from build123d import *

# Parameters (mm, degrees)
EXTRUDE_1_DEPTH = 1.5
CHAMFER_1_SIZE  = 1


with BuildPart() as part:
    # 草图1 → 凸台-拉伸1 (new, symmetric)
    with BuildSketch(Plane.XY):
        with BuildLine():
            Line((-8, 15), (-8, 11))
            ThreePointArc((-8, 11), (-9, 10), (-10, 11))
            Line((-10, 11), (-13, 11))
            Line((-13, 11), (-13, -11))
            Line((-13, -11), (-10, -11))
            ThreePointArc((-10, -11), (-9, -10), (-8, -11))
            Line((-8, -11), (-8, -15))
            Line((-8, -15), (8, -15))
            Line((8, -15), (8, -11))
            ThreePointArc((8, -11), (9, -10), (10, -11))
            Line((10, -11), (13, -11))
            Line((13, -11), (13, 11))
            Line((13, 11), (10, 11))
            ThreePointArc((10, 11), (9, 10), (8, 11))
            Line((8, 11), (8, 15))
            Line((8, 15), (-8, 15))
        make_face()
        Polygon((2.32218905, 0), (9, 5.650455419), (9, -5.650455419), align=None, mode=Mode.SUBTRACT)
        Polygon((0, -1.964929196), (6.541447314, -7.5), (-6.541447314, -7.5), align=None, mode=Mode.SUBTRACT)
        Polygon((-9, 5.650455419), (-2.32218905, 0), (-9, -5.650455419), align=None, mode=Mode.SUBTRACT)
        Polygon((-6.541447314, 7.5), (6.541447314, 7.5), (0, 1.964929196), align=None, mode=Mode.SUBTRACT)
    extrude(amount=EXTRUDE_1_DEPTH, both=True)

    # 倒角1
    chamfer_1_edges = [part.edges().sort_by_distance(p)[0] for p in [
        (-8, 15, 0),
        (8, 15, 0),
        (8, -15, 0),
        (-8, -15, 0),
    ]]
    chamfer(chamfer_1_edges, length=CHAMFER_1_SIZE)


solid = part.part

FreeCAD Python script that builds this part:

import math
import FreeCAD as App
import Part
import Sketcher

V = App.Vector
Q = App.Units.Quantity


def edges_at(feature, points):
    """Names of the edges that pass closest to the given points."""
    edges = feature.Shape.Edges
    near = lambda p: min(range(len(edges)), key=lambda i: edges[i].distToShape(Part.Vertex(*p))[0])
    return sorted({f"Edge{near(p) + 1}" for p in points})


def add_polygon(sketch, points):
    """Adds a closed chain of lines whose ends are joined by coincident constraints."""
    first, n = sketch.GeometryCount, len(points)
    for a, b in zip(points, points[1:] + points[:1]):
        sketch.addGeometry(Part.LineSegment(App.Vector(*a, 0), App.Vector(*b, 0)), False)
    for i in range(n):
        sketch.addConstraint(Sketcher.Constraint("Coincident", first + i, 2, first + (i + 1) % n, 1))

doc = App.newDocument("Part")
body = doc.addObject("PartDesign::Body", "Body")

# Sketch on XY plane
sketch1 = body.newObject("Sketcher::SketchObject", "Sketch")
sketch1.AttachmentSupport = (doc.getObject("XY_Plane"), [""])
sketch1.MapMode = "FlatFace"
sketch1.addGeometry(Part.LineSegment(V(-8, 15, 0), V(-8, 11, 0)), False)  # 0
sketch1.addGeometry(Part.ArcOfCircle(Part.Circle(V(-9, 11, 0), V(0, 0, 1), 1), math.radians(180), math.radians(360)), False)  # 1
sketch1.addGeometry(Part.LineSegment(V(-10, 11, 0), V(-13, 11, 0)), False)  # 2
sketch1.addGeometry(Part.LineSegment(V(-13, 11, 0), V(-13, -11, 0)), False)  # 3
sketch1.addGeometry(Part.LineSegment(V(-13, -11, 0), V(-10, -11, 0)), False)  # 4
sketch1.addGeometry(Part.ArcOfCircle(Part.Circle(V(-9, -11, 0), V(0, 0, 1), 1), math.radians(0), math.radians(180)), False)  # 5
sketch1.addGeometry(Part.LineSegment(V(-8, -11, 0), V(-8, -15, 0)), False)  # 6
sketch1.addGeometry(Part.LineSegment(V(-8, -15, 0), V(8, -15, 0)), False)  # 7
sketch1.addGeometry(Part.LineSegment(V(8, -15, 0), V(8, -11, 0)), False)  # 8
sketch1.addGeometry(Part.ArcOfCircle(Part.Circle(V(9, -11, 0), V(0, 0, 1), 1), math.radians(0), math.radians(180)), False)  # 9
sketch1.addGeometry(Part.LineSegment(V(10, -11, 0), V(13, -11, 0)), False)  # 10
sketch1.addGeometry(Part.LineSegment(V(13, -11, 0), V(13, 11, 0)), False)  # 11
sketch1.addGeometry(Part.LineSegment(V(13, 11, 0), V(10, 11, 0)), False)  # 12
sketch1.addGeometry(Part.ArcOfCircle(Part.Circle(V(9, 11, 0), V(0, 0, 1), 1), math.radians(180), math.radians(360)), False)  # 13
sketch1.addGeometry(Part.LineSegment(V(8, 11, 0), V(8, 15, 0)), False)  # 14
sketch1.addGeometry(Part.LineSegment(V(8, 15, 0), V(-8, 15, 0)), False)  # 15
add_polygon(sketch1, [(-9, -5.7), (-9, 5.7), (-2.3, 0)])  # lines 16-18
add_polygon(sketch1, [(-6.5, -7.5), (0, -2), (6.5, -7.5)])  # lines 19-21
add_polygon(sketch1, [(9, -5.7), (2.3, 0), (9, 5.7)])  # lines 22-24
add_polygon(sketch1, [(0, 2), (-6.5, 7.5), (6.5, 7.5)])  # lines 25-27
sketch1.addConstraint([
    Sketcher.Constraint("Tangent", 0, 2, 1, 2),
    Sketcher.Constraint("Coincident", 1, 1, 2, 1),
    Sketcher.Constraint("Coincident", 2, 2, 3, 1),
    Sketcher.Constraint("Coincident", 3, 2, 4, 1),
    Sketcher.Constraint("Coincident", 4, 2, 5, 2),
    Sketcher.Constraint("Tangent", 5, 1, 6, 1),
    Sketcher.Constraint("Coincident", 6, 2, 7, 1),
    Sketcher.Constraint("Coincident", 7, 2, 8, 1),
    Sketcher.Constraint("Tangent", 8, 2, 9, 2),
    Sketcher.Constraint("Coincident", 9, 1, 10, 1),
    Sketcher.Constraint("Coincident", 10, 2, 11, 1),
    Sketcher.Constraint("Coincident", 11, 2, 12, 1),
    Sketcher.Constraint("Coincident", 12, 2, 13, 2),
    Sketcher.Constraint("Tangent", 13, 1, 14, 1),
    Sketcher.Constraint("Coincident", 14, 2, 15, 1),
    Sketcher.Constraint("Coincident", 15, 2, 0, 1),
    Sketcher.Constraint("Vertical", 0),
    Sketcher.Constraint("Horizontal", 2),
    Sketcher.Constraint("Vertical", 3),
    Sketcher.Constraint("Horizontal", 4),
    Sketcher.Constraint("Vertical", 6),
    Sketcher.Constraint("Horizontal", 7),
    Sketcher.Constraint("Vertical", 8),
    Sketcher.Constraint("Horizontal", 10),
    Sketcher.Constraint("Vertical", 11),
    Sketcher.Constraint("Horizontal", 12),
    Sketcher.Constraint("Vertical", 14),
    Sketcher.Constraint("Horizontal", 15),
    Sketcher.Constraint("Vertical", 16),
    Sketcher.Constraint("Horizontal", 21),
    Sketcher.Constraint("Vertical", 24),
    Sketcher.Constraint("Horizontal", 26),
    Sketcher.Constraint("Equal", 1, 5),
    Sketcher.Constraint("Equal", 5, 9),
    Sketcher.Constraint("Equal", 9, 13),
    Sketcher.Constraint("Symmetric", 1, 3, 9, 3, -1, 1),
    Sketcher.Constraint("Symmetric", 5, 3, 13, 3, -1, 1),
    Sketcher.Constraint("Symmetric", 2, 2, 10, 2, -1, 1),
    Sketcher.Constraint("Symmetric", 17, 2, 22, 2, -1, 1),
    Sketcher.Constraint("Symmetric", 18, 2, 23, 2, -1, 1),
    Sketcher.Constraint("Symmetric", 20, 2, 25, 2, -1, 1),
    Sketcher.Constraint("Symmetric", 19, 2, 27, 2, -1, 1),
    Sketcher.Constraint("Symmetric", 5, 3, 9, 3, -2),
    Sketcher.Constraint("PointOnObject", 17, 2, -1),
    Sketcher.Constraint("PointOnObject", 19, 2, -2),
    Sketcher.Constraint("Parallel", 18, 19),
    Sketcher.Constraint("Parallel", 17, 20),
    Sketcher.Constraint("Parallel", 20, 22),
    Sketcher.Constraint("Parallel", 23, 27),
    Sketcher.Constraint("Horizontal", 0, 2, 1, 1),
    Sketcher.Constraint("Horizontal", 9, 3, 3, 2),
    Sketcher.Constraint("Horizontal", 2, 2, 11, 2),
    Sketcher.Constraint("Horizontal", 16, 2, 23, 2),
    Sketcher.Constraint("Vertical", 5, 3, 16, 2),
    Sketcher.Constraint("Equal", 0, 6),
    Sketcher.Constraint("Radius", 1, Q("1 mm")),
    Sketcher.Constraint("DistanceX", 2, 2, 2, 1, Q("3 mm")),
    Sketcher.Constraint("DistanceX", 7, 1, 7, 2, Q("16 mm")),
    Sketcher.Constraint("DistanceY", 0, 2, 0, 1, Q("4 mm")),
    Sketcher.Constraint("DistanceY", 3, 2, 3, 1, Q("22 mm")),
    Sketcher.Constraint("DistanceY", 20, 2, -1, 1, Q("7.5 mm")),
    Sketcher.Constraint("DistanceY", 16, 1, 16, 2, Q("11.300911 mm")),
    Sketcher.Constraint("DistanceX", 21, 2, 21, 1, Q("13.082895 mm")),
    Sketcher.Constraint("DistanceX", 17, 2, -1, 1, Q("2.322189 mm")),
])
pad1 = body.newObject("PartDesign::Pad", "Pad")
pad1.Profile = sketch1
pad1.Length = 3
pad1.Midplane = True
doc.recompute()

chamfer = body.newObject("PartDesign::Chamfer", "Chamfer")
chamfer.Base = (pad1, edges_at(pad1, [
    (-8, 15, 0),
    (8, 15, 0),
    (8, -15, 0),
    (-8, -15, 0),
]))
chamfer.Size = 1

doc.recompute()
